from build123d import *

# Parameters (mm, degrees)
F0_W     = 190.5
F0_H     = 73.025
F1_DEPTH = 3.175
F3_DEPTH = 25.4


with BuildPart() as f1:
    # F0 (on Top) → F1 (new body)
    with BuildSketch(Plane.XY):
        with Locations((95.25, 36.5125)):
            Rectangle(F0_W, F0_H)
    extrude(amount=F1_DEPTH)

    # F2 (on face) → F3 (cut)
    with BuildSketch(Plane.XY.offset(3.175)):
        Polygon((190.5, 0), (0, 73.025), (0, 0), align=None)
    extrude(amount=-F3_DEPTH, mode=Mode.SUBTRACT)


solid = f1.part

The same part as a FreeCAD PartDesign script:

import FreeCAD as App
import Part
import Sketcher
Q = App.Units.Quantity


def add_polygon(sketch, points):
    """Adds a closed chain of lines whose ends are joined by coincident constraints."""
    first, n = sketch.GeometryCount, len(points)
    for a, b in zip(points, points[1:] + points[:1]):
        sketch.addGeometry(Part.LineSegment(App.Vector(*a, 0), App.Vector(*b, 0)), False)
    for i in range(n):
        sketch.addConstraint(Sketcher.Constraint("Coincident", first + i, 2, first + (i + 1) % n, 1))

doc = App.newDocument("Part")
body = doc.addObject("PartDesign::Body", "Body")

# Sketch on XY plane
sketch1 = body.newObject("Sketcher::SketchObject", "Sketch")
sketch1.AttachmentSupport = (doc.getObject("XY_Plane"), [""])
sketch1.MapMode = "FlatFace"
add_polygon(sketch1, [(0, 73.025), (0, 0), (190.5, 0), (190.5, 73.025)])  # lines 0-3
sketch1.addConstraint([
    Sketcher.Constraint("Vertical", 0),
    Sketcher.Constraint("Horizontal", 1),
    Sketcher.Constraint("Vertical", 2),
    Sketcher.Constraint("Horizontal", 3),
    Sketcher.Constraint("Coincident", 0, 2, -1, 1),
    Sketcher.Constraint("DistanceX", 1, 1, 1, 2, Q("7.5 in")),
    Sketcher.Constraint("DistanceY", 0, 2, 0, 1, Q("2.875 in")),
])
pad1 = body.newObject("PartDesign::Pad", "Pad")
pad1.Profile = sketch1
pad1.Length = Q("0.125 in")

# Sketch on XY plane
sketch2 = body.newObject("Sketcher::SketchObject", "Sketch001")
sketch2.AttachmentSupport = (doc.getObject("XY_Plane"), [""])
sketch2.MapMode = "FlatFace"
sketch2.AttachmentOffset = App.Placement(App.Vector(0, 0, 0.125 * 25.4), App.Rotation())
add_polygon(sketch2, [(190.5, 0), (0, 73.025), (0, 0)])  # lines 0-2
sketch2.addConstraint([
    Sketcher.Constraint("Vertical", 1),
    Sketcher.Constraint("Horizontal", 2),
    Sketcher.Constraint("Coincident", 1, 2, -1, 1),
    Sketcher.Constraint("DistanceX", 2, 1, 2, 2, Q("7.5 in")),
    Sketcher.Constraint("DistanceY", 1, 2, 1, 1, Q("2.875 in")),
])
pocket1 = body.newObject("PartDesign::Pocket", "Pocket")
pocket1.Profile = sketch2
pocket1.Length = Q("1 in")

doc.recompute()
